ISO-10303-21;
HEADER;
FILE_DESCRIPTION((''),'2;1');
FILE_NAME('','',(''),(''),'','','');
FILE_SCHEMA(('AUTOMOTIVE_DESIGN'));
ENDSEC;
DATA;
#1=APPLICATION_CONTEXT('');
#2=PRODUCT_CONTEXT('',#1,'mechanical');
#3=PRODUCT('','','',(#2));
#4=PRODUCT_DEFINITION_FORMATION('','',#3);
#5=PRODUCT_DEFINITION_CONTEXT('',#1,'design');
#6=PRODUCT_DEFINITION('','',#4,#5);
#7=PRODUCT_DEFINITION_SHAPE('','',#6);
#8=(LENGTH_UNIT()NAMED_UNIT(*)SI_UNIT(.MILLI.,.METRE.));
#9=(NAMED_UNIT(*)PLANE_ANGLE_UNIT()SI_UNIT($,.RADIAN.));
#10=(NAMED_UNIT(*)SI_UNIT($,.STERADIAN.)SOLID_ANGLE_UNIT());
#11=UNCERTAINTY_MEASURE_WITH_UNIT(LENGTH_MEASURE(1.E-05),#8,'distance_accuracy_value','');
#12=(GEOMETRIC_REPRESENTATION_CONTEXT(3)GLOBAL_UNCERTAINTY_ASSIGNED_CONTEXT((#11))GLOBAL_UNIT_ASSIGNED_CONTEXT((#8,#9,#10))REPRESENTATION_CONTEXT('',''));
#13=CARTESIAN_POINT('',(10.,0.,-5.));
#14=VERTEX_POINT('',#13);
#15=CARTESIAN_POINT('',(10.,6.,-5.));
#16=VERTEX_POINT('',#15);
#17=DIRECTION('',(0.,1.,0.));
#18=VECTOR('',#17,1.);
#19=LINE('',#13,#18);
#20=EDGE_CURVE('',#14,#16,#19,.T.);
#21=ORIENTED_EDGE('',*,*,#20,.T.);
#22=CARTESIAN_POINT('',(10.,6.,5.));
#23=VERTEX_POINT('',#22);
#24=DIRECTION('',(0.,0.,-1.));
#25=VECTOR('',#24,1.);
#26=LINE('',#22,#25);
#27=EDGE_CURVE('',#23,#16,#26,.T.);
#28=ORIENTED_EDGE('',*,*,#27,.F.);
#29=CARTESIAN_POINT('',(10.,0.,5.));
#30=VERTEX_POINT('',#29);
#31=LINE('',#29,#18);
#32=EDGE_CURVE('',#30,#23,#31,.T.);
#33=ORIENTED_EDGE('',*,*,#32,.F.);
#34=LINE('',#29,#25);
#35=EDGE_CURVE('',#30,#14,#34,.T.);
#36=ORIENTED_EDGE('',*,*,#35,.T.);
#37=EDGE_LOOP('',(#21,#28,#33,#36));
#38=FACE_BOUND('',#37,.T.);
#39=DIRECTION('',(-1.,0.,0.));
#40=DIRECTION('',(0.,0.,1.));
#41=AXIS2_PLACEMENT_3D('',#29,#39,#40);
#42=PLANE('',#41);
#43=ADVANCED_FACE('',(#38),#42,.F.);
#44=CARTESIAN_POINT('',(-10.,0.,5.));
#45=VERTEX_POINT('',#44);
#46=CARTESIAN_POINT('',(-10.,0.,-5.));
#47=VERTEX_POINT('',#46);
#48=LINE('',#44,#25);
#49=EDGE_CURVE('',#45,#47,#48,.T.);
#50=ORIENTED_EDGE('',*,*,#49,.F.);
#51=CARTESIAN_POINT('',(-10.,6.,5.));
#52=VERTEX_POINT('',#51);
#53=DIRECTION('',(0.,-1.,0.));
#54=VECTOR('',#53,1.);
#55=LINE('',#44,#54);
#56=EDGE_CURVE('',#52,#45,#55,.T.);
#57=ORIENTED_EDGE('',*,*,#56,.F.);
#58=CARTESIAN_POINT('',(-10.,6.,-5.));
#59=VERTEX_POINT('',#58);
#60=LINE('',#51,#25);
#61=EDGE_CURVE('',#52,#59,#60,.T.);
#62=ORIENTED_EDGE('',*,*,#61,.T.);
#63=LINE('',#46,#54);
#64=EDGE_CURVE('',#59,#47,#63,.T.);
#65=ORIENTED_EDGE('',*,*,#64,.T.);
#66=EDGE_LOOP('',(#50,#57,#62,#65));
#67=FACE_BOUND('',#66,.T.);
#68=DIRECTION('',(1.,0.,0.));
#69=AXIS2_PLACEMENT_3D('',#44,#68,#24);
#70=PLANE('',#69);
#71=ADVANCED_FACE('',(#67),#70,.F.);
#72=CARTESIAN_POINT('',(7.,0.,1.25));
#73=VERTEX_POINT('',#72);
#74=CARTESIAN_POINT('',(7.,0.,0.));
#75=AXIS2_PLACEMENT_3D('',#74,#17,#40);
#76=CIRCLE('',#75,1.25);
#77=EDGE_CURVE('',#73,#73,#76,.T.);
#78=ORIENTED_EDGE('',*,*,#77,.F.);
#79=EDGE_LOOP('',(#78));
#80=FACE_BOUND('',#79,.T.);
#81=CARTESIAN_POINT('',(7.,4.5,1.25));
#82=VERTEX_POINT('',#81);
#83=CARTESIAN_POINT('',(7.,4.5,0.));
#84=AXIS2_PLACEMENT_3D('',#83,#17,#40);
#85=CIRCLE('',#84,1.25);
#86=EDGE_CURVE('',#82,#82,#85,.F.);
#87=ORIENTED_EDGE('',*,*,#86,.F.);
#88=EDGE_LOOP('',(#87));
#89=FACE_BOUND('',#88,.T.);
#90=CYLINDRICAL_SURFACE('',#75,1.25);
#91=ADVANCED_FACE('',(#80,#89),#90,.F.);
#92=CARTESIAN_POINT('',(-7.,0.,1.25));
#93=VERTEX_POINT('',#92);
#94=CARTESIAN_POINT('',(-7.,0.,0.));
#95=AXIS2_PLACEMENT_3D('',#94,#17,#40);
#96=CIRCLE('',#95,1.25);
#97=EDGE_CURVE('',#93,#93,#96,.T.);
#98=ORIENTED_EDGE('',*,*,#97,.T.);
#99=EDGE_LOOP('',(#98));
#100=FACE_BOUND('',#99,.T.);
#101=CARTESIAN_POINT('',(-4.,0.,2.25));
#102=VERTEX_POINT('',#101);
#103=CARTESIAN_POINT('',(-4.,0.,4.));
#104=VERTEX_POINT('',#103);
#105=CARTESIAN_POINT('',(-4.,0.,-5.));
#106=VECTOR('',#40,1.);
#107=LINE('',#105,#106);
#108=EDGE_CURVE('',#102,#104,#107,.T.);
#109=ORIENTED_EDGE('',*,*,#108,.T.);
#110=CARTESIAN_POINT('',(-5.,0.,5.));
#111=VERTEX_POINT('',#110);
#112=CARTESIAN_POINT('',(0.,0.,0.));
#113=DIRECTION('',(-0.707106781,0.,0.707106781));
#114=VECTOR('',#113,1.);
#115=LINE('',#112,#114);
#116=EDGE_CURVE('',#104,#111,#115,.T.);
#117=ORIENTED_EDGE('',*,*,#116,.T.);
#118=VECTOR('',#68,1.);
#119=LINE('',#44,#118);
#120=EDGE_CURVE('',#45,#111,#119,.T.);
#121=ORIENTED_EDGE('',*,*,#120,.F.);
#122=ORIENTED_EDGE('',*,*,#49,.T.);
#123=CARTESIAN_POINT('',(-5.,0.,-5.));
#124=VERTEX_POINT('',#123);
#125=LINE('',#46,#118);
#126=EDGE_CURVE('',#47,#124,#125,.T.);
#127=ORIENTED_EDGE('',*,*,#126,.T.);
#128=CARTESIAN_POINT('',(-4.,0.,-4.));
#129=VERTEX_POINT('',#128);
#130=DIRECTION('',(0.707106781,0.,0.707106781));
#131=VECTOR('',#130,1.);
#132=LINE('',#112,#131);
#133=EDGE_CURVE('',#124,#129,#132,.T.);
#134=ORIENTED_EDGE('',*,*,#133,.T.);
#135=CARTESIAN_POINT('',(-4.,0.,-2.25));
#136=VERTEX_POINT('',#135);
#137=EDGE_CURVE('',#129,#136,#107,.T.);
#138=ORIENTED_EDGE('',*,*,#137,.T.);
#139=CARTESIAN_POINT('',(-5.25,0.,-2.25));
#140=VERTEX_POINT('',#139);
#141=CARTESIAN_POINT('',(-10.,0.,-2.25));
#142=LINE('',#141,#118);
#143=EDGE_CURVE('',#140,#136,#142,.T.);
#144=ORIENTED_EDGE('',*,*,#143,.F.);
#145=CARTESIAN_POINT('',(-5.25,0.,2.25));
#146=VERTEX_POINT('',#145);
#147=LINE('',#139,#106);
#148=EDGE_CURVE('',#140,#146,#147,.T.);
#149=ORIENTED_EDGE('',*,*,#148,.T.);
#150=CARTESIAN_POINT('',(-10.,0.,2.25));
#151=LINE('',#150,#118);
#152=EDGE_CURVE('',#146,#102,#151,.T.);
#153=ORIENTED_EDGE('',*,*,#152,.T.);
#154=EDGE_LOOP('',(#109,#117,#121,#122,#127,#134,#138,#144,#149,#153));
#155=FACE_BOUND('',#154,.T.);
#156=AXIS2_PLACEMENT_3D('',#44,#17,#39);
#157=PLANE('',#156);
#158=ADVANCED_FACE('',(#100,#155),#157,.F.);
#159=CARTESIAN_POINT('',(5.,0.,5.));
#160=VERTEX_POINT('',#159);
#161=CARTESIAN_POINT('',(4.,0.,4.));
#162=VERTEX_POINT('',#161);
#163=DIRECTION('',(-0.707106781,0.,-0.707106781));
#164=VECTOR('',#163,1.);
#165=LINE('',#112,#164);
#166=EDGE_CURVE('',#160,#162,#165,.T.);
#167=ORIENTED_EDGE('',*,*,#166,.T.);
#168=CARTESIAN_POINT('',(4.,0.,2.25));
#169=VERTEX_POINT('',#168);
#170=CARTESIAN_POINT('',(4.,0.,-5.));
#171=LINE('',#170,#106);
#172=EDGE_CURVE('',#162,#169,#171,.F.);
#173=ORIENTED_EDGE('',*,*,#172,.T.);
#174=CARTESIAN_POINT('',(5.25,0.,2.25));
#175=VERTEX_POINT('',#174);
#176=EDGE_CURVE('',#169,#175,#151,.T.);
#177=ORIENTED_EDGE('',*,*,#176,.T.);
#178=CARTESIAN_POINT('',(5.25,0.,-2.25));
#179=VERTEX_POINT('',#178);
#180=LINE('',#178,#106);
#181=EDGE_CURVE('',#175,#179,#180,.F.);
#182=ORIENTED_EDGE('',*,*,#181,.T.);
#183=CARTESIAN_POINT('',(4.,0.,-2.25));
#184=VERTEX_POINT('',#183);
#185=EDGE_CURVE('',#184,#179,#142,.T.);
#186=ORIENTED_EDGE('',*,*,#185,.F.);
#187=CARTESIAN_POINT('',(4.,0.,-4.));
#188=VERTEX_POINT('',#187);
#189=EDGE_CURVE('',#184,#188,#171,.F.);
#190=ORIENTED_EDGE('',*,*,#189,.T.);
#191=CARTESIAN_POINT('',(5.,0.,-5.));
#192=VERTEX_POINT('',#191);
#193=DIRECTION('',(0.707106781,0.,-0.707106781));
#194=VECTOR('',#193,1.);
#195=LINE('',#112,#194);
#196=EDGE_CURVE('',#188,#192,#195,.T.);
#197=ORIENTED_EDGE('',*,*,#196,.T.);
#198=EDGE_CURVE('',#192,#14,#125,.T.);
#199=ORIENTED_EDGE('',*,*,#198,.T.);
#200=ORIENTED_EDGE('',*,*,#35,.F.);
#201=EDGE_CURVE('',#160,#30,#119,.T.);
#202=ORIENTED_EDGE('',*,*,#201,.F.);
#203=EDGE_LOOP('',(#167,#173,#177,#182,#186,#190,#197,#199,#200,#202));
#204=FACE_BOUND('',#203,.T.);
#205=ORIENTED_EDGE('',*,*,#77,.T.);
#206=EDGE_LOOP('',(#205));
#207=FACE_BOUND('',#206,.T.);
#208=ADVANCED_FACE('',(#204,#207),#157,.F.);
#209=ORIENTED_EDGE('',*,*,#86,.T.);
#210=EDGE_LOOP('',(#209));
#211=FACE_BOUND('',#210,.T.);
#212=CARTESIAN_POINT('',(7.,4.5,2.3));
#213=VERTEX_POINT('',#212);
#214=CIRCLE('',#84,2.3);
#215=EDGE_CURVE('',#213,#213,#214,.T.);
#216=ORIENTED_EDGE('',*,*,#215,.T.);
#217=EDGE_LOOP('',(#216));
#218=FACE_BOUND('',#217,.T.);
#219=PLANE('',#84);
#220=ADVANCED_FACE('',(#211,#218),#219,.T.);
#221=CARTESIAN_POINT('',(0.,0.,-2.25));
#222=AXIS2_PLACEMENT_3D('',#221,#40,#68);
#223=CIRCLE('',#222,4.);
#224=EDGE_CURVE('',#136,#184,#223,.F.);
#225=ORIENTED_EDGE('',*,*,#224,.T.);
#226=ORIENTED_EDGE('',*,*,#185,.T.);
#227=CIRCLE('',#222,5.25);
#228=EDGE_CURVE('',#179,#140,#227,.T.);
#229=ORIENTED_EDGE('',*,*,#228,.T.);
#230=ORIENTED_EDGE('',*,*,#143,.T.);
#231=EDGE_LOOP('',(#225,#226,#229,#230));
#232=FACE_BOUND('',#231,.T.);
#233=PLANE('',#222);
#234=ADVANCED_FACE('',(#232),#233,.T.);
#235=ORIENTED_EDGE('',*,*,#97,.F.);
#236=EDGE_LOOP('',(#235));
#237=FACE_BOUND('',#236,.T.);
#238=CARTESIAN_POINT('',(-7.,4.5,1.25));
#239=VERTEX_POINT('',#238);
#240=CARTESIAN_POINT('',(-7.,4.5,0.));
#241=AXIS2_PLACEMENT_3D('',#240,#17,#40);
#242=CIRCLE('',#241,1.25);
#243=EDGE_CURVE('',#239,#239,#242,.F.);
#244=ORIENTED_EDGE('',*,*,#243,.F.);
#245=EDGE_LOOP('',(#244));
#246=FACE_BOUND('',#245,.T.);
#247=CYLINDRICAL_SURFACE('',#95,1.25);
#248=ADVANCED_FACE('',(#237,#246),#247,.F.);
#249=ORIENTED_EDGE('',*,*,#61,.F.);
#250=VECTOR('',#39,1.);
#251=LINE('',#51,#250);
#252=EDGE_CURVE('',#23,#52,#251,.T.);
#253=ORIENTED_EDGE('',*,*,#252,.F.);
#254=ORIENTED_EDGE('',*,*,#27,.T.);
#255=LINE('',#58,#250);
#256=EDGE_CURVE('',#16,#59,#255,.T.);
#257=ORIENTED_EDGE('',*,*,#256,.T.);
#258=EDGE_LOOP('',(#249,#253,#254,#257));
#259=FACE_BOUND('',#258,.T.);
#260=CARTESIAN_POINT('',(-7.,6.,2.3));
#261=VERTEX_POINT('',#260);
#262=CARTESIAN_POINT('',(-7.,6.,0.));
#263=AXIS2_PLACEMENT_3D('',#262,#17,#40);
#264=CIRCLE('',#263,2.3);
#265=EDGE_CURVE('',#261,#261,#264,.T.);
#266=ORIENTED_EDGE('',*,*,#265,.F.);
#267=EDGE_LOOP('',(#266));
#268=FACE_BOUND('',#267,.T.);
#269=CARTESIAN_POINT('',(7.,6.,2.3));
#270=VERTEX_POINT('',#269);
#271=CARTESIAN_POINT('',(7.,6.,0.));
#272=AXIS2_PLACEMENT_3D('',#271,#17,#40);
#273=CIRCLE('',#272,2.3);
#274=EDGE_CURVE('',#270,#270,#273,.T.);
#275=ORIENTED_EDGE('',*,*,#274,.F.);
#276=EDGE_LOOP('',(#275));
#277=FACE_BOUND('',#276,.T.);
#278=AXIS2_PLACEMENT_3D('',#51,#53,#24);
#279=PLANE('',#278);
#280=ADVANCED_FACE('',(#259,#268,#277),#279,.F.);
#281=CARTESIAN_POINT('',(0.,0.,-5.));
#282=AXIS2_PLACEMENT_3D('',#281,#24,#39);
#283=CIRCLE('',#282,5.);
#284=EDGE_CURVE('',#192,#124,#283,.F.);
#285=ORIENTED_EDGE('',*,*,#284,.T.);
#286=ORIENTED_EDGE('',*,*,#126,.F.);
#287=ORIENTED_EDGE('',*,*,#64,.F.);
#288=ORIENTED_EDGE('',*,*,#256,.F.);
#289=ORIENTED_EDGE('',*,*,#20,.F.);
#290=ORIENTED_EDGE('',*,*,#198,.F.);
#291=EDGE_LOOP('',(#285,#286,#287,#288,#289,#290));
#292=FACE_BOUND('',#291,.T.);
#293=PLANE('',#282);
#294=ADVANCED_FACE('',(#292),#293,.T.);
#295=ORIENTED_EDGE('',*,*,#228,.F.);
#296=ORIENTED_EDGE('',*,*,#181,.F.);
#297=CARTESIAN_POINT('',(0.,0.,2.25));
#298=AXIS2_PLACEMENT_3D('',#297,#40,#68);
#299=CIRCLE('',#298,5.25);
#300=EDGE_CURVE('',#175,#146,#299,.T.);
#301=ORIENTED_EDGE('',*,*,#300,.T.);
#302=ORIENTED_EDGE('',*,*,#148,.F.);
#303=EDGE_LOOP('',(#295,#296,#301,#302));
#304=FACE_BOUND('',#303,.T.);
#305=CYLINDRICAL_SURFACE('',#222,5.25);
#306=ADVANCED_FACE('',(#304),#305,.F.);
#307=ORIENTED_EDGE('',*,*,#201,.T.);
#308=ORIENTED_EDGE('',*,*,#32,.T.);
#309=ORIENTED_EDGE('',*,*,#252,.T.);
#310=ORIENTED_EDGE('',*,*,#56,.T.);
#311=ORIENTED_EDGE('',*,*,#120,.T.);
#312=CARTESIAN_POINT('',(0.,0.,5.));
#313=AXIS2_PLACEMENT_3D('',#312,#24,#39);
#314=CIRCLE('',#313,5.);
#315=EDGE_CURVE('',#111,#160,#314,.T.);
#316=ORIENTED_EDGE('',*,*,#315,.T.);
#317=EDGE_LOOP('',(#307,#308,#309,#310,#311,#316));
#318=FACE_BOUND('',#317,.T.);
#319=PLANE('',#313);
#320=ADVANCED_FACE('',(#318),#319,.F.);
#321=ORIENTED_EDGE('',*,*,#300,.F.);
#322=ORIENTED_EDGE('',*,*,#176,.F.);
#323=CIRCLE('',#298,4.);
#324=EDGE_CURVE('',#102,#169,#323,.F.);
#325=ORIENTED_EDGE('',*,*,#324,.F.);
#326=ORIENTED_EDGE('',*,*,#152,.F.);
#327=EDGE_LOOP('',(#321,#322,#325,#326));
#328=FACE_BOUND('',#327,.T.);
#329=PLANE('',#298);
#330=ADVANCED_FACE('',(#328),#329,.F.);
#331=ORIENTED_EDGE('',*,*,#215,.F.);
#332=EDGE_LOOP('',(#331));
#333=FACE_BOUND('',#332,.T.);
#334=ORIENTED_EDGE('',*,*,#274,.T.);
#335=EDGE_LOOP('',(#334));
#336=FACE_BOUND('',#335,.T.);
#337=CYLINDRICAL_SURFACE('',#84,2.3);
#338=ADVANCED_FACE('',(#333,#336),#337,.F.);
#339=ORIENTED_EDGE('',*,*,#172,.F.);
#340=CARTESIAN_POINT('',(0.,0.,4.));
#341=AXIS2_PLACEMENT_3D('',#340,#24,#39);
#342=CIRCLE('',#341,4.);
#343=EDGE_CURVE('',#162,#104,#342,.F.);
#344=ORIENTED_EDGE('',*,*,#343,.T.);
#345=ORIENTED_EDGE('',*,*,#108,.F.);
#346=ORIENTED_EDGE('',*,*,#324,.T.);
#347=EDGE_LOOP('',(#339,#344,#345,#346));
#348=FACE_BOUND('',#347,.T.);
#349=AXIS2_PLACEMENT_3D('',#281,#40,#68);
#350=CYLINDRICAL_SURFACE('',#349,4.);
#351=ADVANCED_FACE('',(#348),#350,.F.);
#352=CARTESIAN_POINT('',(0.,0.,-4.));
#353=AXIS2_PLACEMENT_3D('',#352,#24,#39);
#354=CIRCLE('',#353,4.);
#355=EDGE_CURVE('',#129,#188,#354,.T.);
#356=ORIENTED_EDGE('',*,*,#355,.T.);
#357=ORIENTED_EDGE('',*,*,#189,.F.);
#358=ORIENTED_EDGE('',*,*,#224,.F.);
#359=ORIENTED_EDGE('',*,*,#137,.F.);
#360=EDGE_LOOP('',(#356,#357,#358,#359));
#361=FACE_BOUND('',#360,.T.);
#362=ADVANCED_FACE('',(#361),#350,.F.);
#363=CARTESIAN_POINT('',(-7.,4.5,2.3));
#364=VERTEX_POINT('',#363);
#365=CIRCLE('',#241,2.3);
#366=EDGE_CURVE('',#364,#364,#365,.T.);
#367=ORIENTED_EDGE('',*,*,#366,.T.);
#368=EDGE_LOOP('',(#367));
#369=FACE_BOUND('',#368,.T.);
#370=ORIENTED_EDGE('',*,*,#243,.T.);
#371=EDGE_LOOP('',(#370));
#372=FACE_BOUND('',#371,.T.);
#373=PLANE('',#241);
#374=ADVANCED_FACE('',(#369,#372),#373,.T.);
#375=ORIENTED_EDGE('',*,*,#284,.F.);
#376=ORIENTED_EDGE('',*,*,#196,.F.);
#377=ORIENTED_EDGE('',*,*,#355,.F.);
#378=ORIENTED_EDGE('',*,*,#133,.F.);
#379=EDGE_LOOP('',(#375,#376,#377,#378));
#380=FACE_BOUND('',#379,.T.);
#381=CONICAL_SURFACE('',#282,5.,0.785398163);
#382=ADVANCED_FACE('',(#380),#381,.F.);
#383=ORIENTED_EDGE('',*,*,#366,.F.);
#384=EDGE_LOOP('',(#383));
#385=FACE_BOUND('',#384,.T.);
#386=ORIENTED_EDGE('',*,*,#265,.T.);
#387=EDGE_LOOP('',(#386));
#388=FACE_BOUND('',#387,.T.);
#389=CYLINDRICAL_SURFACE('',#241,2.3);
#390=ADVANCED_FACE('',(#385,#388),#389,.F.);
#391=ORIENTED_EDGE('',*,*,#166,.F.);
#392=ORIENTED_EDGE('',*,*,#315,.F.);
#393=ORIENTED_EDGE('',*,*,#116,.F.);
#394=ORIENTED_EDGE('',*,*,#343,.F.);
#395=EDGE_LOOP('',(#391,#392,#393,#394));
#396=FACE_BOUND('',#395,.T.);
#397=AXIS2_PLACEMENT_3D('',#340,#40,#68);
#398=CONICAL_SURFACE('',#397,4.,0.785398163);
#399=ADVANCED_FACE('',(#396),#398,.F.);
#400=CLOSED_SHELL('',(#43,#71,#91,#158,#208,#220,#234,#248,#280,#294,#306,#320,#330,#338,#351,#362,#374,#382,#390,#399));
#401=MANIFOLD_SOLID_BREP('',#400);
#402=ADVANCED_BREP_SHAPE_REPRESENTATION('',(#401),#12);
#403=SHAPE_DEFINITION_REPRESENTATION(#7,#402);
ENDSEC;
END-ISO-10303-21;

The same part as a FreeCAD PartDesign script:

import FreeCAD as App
import Part
import Sketcher

V = App.Vector
Q = App.Units.Quantity


def edges_at(feature, points):
    """Names of the edges that pass closest to the given points."""
    edges = feature.Shape.Edges
    near = lambda p: min(range(len(edges)), key=lambda i: edges[i].distToShape(Part.Vertex(*p))[0])
    return sorted({f"Edge{near(p) + 1}" for p in points})


def add_polygon(sketch, points):
    """Adds a closed chain of lines whose ends are joined by coincident constraints."""
    first, n = sketch.GeometryCount, len(points)
    for a, b in zip(points, points[1:] + points[:1]):
        sketch.addGeometry(Part.LineSegment(App.Vector(*a, 0), App.Vector(*b, 0)), False)
    for i in range(n):
        sketch.addConstraint(Sketcher.Constraint("Coincident", first + i, 2, first + (i + 1) % n, 1))

doc = App.newDocument("Part")
body = doc.addObject("PartDesign::Body", "Body")

# Sketch on XY plane
sketch1 = body.newObject("Sketcher::SketchObject", "Sketch")
sketch1.AttachmentSupport = (doc.getObject("XY_Plane"), [""])
sketch1.MapMode = "FlatFace"
add_polygon(sketch1, [(-10, 6), (-10, 0), (10, 0), (10, 6)])  # lines 0-3
sketch1.addConstraint(Sketcher.Constraint("Vertical", 0))
sketch1.addConstraint(Sketcher.Constraint("Horizontal", 1))
sketch1.addConstraint(Sketcher.Constraint("Vertical", 2))
sketch1.addConstraint(Sketcher.Constraint("Horizontal", 3))
sketch1.addConstraint(Sketcher.Constraint("Symmetric", 0, 2, 1, 2, -1, 1))
sketch1.addConstraint(Sketcher.Constraint("DistanceX", 1, 1, 1, 2, Q("20 mm")))
sketch1.addConstraint(Sketcher.Constraint("DistanceY", 0, 2, 0, 1, Q("6 mm")))
pad1 = body.newObject("PartDesign::Pad", "Pad")
pad1.Profile = sketch1
pad1.Length = 10
pad1.Midplane = True

# Sketch on XY plane
sketch2 = body.newObject("Sketcher::SketchObject", "Sketch001")
sketch2.AttachmentSupport = (doc.getObject("XY_Plane"), [""])
sketch2.MapMode = "FlatFace"
sketch2.AttachmentOffset = App.Placement(V(0, 0, 5), App.Rotation())
sketch2.addGeometry(Part.Circle(V(0, 0, 0), V(0, 0, 1), 4), False)
sketch2.addConstraint(Sketcher.Constraint("Coincident", 0, 3, -1, 1))
sketch2.addConstraint(Sketcher.Constraint("Diameter", 0, Q("8 mm")))
pocket1 = body.newObject("PartDesign::Pocket", "Pocket")
pocket1.Profile = sketch2
pocket1.Type = "ThroughAll"

# Sketch on XY plane
sketch3 = body.newObject("Sketcher::SketchObject", "Sketch002")
sketch3.AttachmentSupport = (doc.getObject("XY_Plane"), [""])
sketch3.MapMode = "FlatFace"
sketch3.addGeometry(Part.Circle(V(0, 0, 0), V(0, 0, 1), 5.25), False)
sketch3.addConstraint(Sketcher.Constraint("Coincident", 0, 3, -1, 1))
sketch3.addConstraint(Sketcher.Constraint("Diameter", 0, Q("10.5 mm")))
pocket2 = body.newObject("PartDesign::Pocket", "Pocket001")
pocket2.Profile = sketch3
pocket2.Length = 4.5
pocket2.Midplane = True

# Sketch on XZ plane
sketch4 = body.newObject("Sketcher::SketchObject", "Sketch003")
sketch4.AttachmentSupport = (doc.getObject("XZ_Plane"), [""])
sketch4.MapMode = "FlatFace"
sketch4.AttachmentOffset = App.Placement(V(0, 0, -6), App.Rotation())
sketch4.addGeometry(Part.Circle(V(-7, 0, 0), V(0, 0, 1), 1.25), False)
sketch4.addGeometry(Part.Circle(V(7, 0, 0), V(0, 0, 1), 1.25), False)
sketch4.addConstraint(Sketcher.Constraint("Equal", 0, 1))
sketch4.addConstraint(Sketcher.Constraint("Symmetric", 0, 3, 1, 3, -1, 1))
sketch4.addConstraint(Sketcher.Constraint("PointOnObject", 0, 3, -1))
sketch4.addConstraint(Sketcher.Constraint("Diameter", 0, Q("2.5 mm")))
sketch4.addConstraint(Sketcher.Constraint("DistanceX", 0, 3, -1, 1, Q("7 mm")))
pocket3 = body.newObject("PartDesign::Pocket", "Pocket002")
pocket3.Profile = sketch4
pocket3.Type = "ThroughAll"
pocket3.Reversed = True
doc.recompute()

chamfer = body.newObject("PartDesign::Chamfer", "Chamfer")
chamfer.Base = (pocket3, edges_at(pocket3, [(0, 4, 5), (0, 4, -5)]))
chamfer.Size = 1

# Sketch on XZ plane
sketch5 = body.newObject("Sketcher::SketchObject", "Sketch004")
sketch5.AttachmentSupport = (doc.getObject("XZ_Plane"), [""])
sketch5.MapMode = "FlatFace"
sketch5.AttachmentOffset = App.Placement(V(0, 0, -6), App.Rotation())
sketch5.addGeometry(Part.Circle(V(-7, 0, 0), V(0, 0, 1), 2.3), False)
sketch5.addGeometry(Part.Circle(V(7, 0, 0), V(0, 0, 1), 2.3), False)
sketch5.addConstraint(Sketcher.Constraint("Equal", 0, 1))
sketch5.addConstraint(Sketcher.Constraint("Symmetric", 0, 3, 1, 3, -1, 1))
sketch5.addConstraint(Sketcher.Constraint("PointOnObject", 0, 3, -1))
sketch5.addConstraint(Sketcher.Constraint("Diameter", 0, Q("4.6 mm")))
sketch5.addConstraint(Sketcher.Constraint("DistanceX", 0, 3, -1, 1, Q("7 mm")))
pocket4 = body.newObject("PartDesign::Pocket", "Pocket003")
pocket4.Profile = sketch5
pocket4.Length = 1.5
pocket4.Reversed = True

doc.recompute()
